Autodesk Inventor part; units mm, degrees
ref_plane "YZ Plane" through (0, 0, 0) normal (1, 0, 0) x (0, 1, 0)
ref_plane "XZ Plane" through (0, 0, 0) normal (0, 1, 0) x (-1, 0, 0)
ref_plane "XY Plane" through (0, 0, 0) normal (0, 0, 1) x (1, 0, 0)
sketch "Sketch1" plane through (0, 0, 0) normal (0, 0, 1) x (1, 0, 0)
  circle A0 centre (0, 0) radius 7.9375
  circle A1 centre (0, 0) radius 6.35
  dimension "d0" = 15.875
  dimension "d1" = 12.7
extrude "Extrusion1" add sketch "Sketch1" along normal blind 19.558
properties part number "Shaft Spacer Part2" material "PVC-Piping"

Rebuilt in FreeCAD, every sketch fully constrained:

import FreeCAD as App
import Part
import Sketcher
from FreeCAD import Vector
Q = App.Units.Quantity

doc = App.newDocument("Part")
body = doc.addObject("PartDesign::Body", "Body")

# Sketch on XY plane
sketch1 = body.newObject("Sketcher::SketchObject", "Sketch")
sketch1.AttachmentSupport = (doc.getObject("XY_Plane"), [""])
sketch1.MapMode = "FlatFace"
sketch1.addGeometry([
    Part.Circle(Vector(0, 0, 0), Vector(0, 0, 1), 8),
    Part.Circle(Vector(0, 0, 0), Vector(0, 0, 1), 6),
], False)
sketch1.addConstraint([
    Sketcher.Constraint("Coincident", 0, 3, -1, 1),
    Sketcher.Constraint("Coincident", 1, 3, -1, 1),
    Sketcher.Constraint("Diameter", 1, Q("0.5 in")),
    Sketcher.Constraint("Diameter", 0, Q("0.625 in")),
])
pad1 = body.newObject("PartDesign::Pad", "Pad")
pad1.Profile = sketch1
pad1.Length = Q("0.77 in")

doc.recompute()
